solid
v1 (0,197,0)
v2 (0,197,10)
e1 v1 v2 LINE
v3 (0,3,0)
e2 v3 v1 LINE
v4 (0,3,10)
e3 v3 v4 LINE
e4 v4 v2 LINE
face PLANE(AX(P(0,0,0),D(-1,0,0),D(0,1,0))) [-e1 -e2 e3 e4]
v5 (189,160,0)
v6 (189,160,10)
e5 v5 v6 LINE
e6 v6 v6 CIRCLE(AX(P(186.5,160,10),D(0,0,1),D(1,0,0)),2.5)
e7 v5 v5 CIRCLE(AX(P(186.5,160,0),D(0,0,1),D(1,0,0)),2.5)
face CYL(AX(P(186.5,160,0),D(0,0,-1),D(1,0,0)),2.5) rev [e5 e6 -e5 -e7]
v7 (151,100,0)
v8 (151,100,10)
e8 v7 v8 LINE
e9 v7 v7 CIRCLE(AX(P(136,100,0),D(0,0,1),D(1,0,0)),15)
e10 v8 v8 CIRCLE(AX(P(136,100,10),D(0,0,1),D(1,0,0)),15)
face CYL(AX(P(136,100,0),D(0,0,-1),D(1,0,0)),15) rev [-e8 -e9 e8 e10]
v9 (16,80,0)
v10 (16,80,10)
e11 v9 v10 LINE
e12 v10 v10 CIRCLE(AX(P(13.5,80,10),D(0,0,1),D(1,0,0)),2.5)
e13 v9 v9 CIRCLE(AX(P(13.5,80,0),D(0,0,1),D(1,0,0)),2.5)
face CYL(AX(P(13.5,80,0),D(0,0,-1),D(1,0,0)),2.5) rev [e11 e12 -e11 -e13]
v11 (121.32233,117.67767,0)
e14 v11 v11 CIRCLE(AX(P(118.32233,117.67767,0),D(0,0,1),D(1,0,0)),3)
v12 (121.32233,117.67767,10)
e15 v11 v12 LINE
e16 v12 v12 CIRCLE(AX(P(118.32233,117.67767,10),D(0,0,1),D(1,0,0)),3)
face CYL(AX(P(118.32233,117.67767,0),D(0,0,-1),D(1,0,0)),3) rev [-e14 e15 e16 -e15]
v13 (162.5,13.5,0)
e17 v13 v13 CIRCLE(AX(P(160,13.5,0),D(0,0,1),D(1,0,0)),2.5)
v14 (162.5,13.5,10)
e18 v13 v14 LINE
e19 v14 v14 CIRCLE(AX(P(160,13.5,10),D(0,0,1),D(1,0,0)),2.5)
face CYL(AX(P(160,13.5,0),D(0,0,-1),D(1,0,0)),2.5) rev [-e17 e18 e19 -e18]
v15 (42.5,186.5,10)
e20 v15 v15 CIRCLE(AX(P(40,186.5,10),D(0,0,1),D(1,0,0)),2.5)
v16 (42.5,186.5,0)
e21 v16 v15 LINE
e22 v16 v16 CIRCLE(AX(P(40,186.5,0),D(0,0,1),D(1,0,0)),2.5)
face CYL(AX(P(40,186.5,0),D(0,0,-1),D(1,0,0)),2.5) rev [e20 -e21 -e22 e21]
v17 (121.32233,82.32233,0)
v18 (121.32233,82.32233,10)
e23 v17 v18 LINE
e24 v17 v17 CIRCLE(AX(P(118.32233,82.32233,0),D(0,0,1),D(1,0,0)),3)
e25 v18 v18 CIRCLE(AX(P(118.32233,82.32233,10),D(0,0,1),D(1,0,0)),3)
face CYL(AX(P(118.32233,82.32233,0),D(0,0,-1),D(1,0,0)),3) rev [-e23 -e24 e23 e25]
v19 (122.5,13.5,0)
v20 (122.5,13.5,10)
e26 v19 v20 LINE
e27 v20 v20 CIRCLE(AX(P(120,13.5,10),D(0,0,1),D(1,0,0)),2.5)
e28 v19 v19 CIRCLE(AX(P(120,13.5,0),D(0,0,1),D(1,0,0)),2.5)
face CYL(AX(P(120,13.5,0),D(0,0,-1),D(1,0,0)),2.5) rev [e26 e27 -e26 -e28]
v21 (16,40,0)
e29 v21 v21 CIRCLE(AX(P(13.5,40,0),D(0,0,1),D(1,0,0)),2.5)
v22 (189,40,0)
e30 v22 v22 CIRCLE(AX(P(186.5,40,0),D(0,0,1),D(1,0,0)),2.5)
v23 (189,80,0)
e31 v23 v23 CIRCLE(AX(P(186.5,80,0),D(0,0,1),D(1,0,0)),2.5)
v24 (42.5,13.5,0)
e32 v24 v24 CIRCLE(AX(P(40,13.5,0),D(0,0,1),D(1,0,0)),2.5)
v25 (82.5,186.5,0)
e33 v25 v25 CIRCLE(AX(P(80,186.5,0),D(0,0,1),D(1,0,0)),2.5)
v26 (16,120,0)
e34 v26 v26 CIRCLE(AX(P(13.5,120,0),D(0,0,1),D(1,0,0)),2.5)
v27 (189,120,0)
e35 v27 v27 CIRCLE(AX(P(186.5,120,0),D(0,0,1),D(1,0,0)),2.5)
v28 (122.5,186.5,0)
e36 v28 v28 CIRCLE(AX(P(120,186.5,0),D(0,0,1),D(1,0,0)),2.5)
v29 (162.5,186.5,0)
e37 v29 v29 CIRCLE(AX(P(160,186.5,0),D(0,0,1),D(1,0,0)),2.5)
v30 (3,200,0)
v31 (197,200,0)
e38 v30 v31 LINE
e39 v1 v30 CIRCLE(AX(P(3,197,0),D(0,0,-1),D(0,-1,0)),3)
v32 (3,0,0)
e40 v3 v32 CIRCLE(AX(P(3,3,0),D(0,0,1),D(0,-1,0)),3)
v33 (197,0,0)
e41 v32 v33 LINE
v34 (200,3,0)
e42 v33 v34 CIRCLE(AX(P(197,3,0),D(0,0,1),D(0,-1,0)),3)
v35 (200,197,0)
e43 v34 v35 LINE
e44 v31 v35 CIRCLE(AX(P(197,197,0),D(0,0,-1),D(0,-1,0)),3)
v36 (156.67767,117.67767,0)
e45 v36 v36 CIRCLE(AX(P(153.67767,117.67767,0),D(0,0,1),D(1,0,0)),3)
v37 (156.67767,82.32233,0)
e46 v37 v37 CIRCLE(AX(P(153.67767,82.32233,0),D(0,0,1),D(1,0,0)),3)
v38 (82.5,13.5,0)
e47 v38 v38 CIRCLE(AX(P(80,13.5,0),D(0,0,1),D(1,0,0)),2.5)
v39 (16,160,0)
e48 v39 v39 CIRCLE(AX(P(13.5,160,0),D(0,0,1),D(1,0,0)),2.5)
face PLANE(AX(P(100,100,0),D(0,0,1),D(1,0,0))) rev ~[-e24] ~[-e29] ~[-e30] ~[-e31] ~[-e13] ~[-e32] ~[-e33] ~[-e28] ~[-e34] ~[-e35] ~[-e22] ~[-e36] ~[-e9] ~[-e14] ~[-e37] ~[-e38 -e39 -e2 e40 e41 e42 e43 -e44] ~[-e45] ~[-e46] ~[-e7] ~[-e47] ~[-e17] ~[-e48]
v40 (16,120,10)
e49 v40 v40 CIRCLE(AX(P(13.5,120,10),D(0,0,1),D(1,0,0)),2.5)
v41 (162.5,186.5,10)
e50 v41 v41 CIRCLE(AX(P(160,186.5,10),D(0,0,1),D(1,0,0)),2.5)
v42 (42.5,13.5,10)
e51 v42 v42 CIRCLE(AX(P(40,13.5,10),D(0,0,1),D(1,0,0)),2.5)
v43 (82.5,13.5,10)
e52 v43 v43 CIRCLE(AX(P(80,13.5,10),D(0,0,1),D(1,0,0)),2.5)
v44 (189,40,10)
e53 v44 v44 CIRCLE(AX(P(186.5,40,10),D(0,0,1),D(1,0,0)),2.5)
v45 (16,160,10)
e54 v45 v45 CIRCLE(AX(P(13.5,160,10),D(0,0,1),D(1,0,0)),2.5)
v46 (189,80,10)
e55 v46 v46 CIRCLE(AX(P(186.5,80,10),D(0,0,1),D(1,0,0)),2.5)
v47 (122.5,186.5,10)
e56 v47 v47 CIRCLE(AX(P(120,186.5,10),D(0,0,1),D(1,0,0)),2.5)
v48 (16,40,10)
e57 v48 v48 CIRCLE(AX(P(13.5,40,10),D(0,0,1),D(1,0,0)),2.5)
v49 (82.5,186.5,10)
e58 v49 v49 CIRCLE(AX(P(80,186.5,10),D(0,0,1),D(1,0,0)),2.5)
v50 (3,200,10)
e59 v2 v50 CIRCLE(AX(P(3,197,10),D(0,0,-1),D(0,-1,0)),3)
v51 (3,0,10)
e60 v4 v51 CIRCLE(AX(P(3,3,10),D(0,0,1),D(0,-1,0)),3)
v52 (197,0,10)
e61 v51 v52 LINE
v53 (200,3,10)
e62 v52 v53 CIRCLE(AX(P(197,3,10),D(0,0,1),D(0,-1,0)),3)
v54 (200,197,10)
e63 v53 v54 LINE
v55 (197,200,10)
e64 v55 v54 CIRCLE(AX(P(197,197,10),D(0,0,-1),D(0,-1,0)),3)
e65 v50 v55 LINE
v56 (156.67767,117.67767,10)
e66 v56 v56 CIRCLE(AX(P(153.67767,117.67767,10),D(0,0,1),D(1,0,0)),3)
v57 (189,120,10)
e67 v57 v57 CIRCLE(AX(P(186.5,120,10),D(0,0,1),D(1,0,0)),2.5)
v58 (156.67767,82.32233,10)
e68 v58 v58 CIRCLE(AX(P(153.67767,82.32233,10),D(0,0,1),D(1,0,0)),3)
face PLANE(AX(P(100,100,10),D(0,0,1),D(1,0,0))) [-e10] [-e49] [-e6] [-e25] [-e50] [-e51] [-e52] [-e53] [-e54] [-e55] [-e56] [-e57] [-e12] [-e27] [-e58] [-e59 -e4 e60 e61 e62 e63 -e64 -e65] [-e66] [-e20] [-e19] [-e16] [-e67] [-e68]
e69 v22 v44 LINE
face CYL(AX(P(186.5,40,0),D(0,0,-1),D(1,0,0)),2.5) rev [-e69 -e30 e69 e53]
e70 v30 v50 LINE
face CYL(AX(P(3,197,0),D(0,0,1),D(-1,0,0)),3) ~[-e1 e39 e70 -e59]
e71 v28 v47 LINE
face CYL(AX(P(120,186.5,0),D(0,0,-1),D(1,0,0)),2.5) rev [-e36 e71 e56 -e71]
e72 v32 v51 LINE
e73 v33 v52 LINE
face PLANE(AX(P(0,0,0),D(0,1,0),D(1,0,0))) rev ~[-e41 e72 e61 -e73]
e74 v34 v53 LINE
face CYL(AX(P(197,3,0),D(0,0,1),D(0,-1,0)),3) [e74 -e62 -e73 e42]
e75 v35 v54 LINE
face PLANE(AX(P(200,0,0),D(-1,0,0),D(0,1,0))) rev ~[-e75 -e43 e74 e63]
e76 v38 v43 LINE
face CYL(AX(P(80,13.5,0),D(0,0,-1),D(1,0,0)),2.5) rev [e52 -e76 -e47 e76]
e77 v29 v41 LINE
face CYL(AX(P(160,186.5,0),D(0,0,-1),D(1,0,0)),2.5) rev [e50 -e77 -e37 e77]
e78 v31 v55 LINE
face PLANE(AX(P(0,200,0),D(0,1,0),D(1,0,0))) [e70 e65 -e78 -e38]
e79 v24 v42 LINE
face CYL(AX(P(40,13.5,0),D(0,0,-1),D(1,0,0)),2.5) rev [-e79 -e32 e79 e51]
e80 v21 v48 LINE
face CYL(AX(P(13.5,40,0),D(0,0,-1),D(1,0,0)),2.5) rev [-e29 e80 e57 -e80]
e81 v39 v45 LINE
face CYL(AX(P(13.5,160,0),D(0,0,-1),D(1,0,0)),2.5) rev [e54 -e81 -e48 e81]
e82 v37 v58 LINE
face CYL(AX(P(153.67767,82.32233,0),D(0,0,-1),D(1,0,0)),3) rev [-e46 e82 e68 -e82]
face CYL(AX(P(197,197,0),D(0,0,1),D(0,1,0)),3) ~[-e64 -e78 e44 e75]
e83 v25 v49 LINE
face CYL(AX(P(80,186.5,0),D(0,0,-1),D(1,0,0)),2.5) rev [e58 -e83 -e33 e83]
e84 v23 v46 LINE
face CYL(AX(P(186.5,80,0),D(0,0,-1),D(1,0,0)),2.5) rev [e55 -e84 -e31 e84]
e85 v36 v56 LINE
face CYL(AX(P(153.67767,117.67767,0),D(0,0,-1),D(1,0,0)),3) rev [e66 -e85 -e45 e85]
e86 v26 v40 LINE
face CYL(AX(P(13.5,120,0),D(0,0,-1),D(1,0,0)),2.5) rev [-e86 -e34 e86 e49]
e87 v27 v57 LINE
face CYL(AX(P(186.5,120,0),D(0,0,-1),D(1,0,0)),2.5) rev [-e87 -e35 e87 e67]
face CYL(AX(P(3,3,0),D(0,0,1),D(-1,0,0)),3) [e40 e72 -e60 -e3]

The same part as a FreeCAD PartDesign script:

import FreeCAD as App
import Part
import Sketcher


def edges_at(feature, points):
    """Names of the edges that pass closest to the given points."""
    edges = feature.Shape.Edges
    near = lambda p: min(range(len(edges)), key=lambda i: edges[i].distToShape(Part.Vertex(*p))[0])
    return sorted({f"Edge{near(p) + 1}" for p in points})


def add_polygon(sketch, points):
    """Adds a closed chain of lines whose ends are joined by coincident constraints."""
    first, n = sketch.GeometryCount, len(points)
    for a, b in zip(points, points[1:] + points[:1]):
        sketch.addGeometry(Part.LineSegment(App.Vector(*a, 0), App.Vector(*b, 0)), False)
    for i in range(n):
        sketch.addConstraint(Sketcher.Constraint("Coincident", first + i, 2, first + (i + 1) % n, 1))

doc = App.newDocument("Part")
params = doc.addObject("Spreadsheet::Sheet", "Params")
for row, (alias, value) in enumerate([
    ("sketch1_diameter", "5 mm"),
    ("sketch1_diameter2", "6 mm"),
    ("sketch1_diameter3", "30 mm"),
    ("sketch1_width", "200 mm"),
    ("pad1_length", "10 mm"),
    ("fillet_radius", "3 mm"),
], start=1):
    params.set(f"A{row}", alias)
    params.set(f"B{row}", "=" + value)
    params.setAlias(f"B{row}", alias)

body = doc.addObject("PartDesign::Body", "Body")

# Sketch on XY plane
sketch1 = body.newObject("Sketcher::SketchObject", "Sketch")
sketch1.AttachmentSupport = (doc.getObject("XY_Plane"), [""])
sketch1.MapMode = "FlatFace"
add_polygon(sketch1, [(0, 200), (0, 0), (200, 0), (200, 200)])  # lines 0-3
sketch1.addGeometry(Part.Circle(App.Vector(40, 13.5, 0), App.Vector(0, 0, 1), 2.5), False)  # 4
sketch1.addGeometry(Part.Circle(App.Vector(13.5, 40, 0), App.Vector(0, 0, 1), 2.5), False)  # 5
sketch1.addGeometry(Part.Circle(App.Vector(80, 13.5, 0), App.Vector(0, 0, 1), 2.5), False)  # 6
sketch1.addGeometry(Part.Circle(App.Vector(13.5, 80, 0), App.Vector(0, 0, 1), 2.5), False)  # 7
sketch1.addGeometry(Part.Circle(App.Vector(120, 13.5, 0), App.Vector(0, 0, 1), 2.5), False)  # 8
sketch1.addGeometry(Part.Circle(App.Vector(160, 13.5, 0), App.Vector(0, 0, 1), 2.5), False)  # 9
sketch1.addGeometry(Part.Circle(App.Vector(186.5, 40, 0), App.Vector(0, 0, 1), 2.5), False)  # 10
sketch1.addGeometry(Part.Circle(App.Vector(118.3, 82.3, 0), App.Vector(0, 0, 1), 3), False)  # 11
sketch1.addGeometry(Part.Circle(App.Vector(153.7, 82.3, 0), App.Vector(0, 0, 1), 3), False)  # 12
sketch1.addGeometry(Part.Circle(App.Vector(186.5, 80, 0), App.Vector(0, 0, 1), 2.5), False)  # 13
sketch1.addGeometry(Part.Circle(App.Vector(13.5, 120, 0), App.Vector(0, 0, 1), 2.5), False)  # 14
sketch1.addGeometry(Part.Circle(App.Vector(13.5, 160, 0), App.Vector(0, 0, 1), 2.5), False)  # 15
sketch1.addGeometry(Part.Circle(App.Vector(40, 186.5, 0), App.Vector(0, 0, 1), 2.5), False)  # 16
sketch1.addGeometry(Part.Circle(App.Vector(80, 186.5, 0), App.Vector(0, 0, 1), 2.5), False)  # 17
sketch1.addGeometry(Part.Circle(App.Vector(118.3, 117.7, 0), App.Vector(0, 0, 1), 3), False)  # 18
sketch1.addGeometry(Part.Circle(App.Vector(136, 100, 0), App.Vector(0, 0, 1), 15), False)  # 19
sketch1.addGeometry(Part.Circle(App.Vector(153.7, 117.7, 0), App.Vector(0, 0, 1), 3), False)  # 20
sketch1.addGeometry(Part.Circle(App.Vector(186.5, 120, 0), App.Vector(0, 0, 1), 2.5), False)  # 21
sketch1.addGeometry(Part.Circle(App.Vector(120, 186.5, 0), App.Vector(0, 0, 1), 2.5), False)  # 22
sketch1.addGeometry(Part.Circle(App.Vector(186.5, 160, 0), App.Vector(0, 0, 1), 2.5), False)  # 23
sketch1.addGeometry(Part.Circle(App.Vector(160, 186.5, 0), App.Vector(0, 0, 1), 2.5), False)  # 24
sketch1.addConstraint([
    Sketcher.Constraint("Vertical", 0),
    Sketcher.Constraint("Horizontal", 1),
    Sketcher.Constraint("Vertical", 2),
    Sketcher.Constraint("Horizontal", 3),
    Sketcher.Constraint("Coincident", 0, 2, -1, 1),
    Sketcher.Constraint("Equal", 4, 5),
    Sketcher.Constraint("Equal", 5, 6),
    Sketcher.Constraint("Equal", 6, 7),
    Sketcher.Constraint("Equal", 7, 8),
    Sketcher.Constraint("Equal", 8, 9),
    Sketcher.Constraint("Equal", 9, 10),
    Sketcher.Constraint("Equal", 11, 12),
    Sketcher.Constraint("Equal", 10, 13),
    Sketcher.Constraint("Equal", 13, 14),
    Sketcher.Constraint("Equal", 14, 15),
    Sketcher.Constraint("Equal", 15, 16),
    Sketcher.Constraint("Equal", 16, 17),
    Sketcher.Constraint("Equal", 12, 18),
    Sketcher.Constraint("Equal", 18, 20),
    Sketcher.Constraint("Equal", 17, 21),
    Sketcher.Constraint("Equal", 21, 22),
    Sketcher.Constraint("Equal", 22, 23),
    Sketcher.Constraint("Equal", 23, 24),
    Sketcher.Constraint("Horizontal", 4, 3, 6, 3),
    Sketcher.Constraint("Horizontal", 6, 3, 8, 3),
    Sketcher.Constraint("Horizontal", 8, 3, 9, 3),
    Sketcher.Constraint("Horizontal", 5, 3, 10, 3),
    Sketcher.Constraint("Horizontal", 11, 3, 12, 3),
    Sketcher.Constraint("Horizontal", 7, 3, 13, 3),
    Sketcher.Constraint("Horizontal", 16, 3, 17, 3),
    Sketcher.Constraint("Horizontal", 18, 3, 20, 3),
    Sketcher.Constraint("Horizontal", 14, 3, 21, 3),
    Sketcher.Constraint("Horizontal", 17, 3, 22, 3),
    Sketcher.Constraint("Horizontal", 15, 3, 23, 3),
    Sketcher.Constraint("Horizontal", 22, 3, 24, 3),
    Sketcher.Constraint("Vertical", 5, 3, 7, 3),
    Sketcher.Constraint("Vertical", 10, 3, 13, 3),
    Sketcher.Constraint("Vertical", 7, 3, 14, 3),
    Sketcher.Constraint("Vertical", 14, 3, 15, 3),
    Sketcher.Constraint("Vertical", 4, 3, 16, 3),
    Sketcher.Constraint("Vertical", 6, 3, 17, 3),
    Sketcher.Constraint("Vertical", 11, 3, 18, 3),
    Sketcher.Constraint("Vertical", 12, 3, 20, 3),
    Sketcher.Constraint("Vertical", 13, 3, 21, 3),
    Sketcher.Constraint("Vertical", 8, 3, 22, 3),
    Sketcher.Constraint("Vertical", 21, 3, 23, 3),
    Sketcher.Constraint("Vertical", 9, 3, 24, 3),
    Sketcher.Constraint("Equal", 3, 0),
    Sketcher.Constraint("Diameter", 4, 5.0),
    Sketcher.Constraint("Diameter", 11, 6.0),
    Sketcher.Constraint("Diameter", 19, 30.0),
    Sketcher.Constraint("DistanceX", 1, 1, 1, 2, 200.0),
    Sketcher.Constraint("DistanceX", -1, 1, 4, 3, 40.0),
    Sketcher.Constraint("DistanceY", -1, 1, 5, 3, 40.0),
    Sketcher.Constraint("DistanceX", -1, 1, 6, 3, 80.0),
    Sketcher.Constraint("DistanceY", -1, 1, 7, 3, 80.0),
    Sketcher.Constraint("DistanceX", -1, 1, 8, 3, 120.0),
    Sketcher.Constraint("DistanceX", -1, 1, 9, 3, 160.0),
    Sketcher.Constraint("DistanceY", -1, 1, 14, 3, 120.0),
    Sketcher.Constraint("DistanceY", -1, 1, 15, 3, 160.0),
    Sketcher.Constraint("DistanceX", -1, 1, 19, 3, 136.0),
    Sketcher.Constraint("DistanceY", -1, 1, 19, 3, 100.0),
    Sketcher.Constraint("DistanceX", 5, 3, 10, 3, 173.0),
    Sketcher.Constraint("DistanceY", -1, 1, 4, 3, 13.5),
    Sketcher.Constraint("DistanceX", -1, 1, 5, 3, 13.5),
    Sketcher.Constraint("DistanceY", -1, 1, 16, 3, 186.5),
    Sketcher.Constraint("DistanceX", -1, 1, 11, 3, 118.32233),
    Sketcher.Constraint("DistanceY", -1, 1, 11, 3, 82.32233),
    Sketcher.Constraint("DistanceX", -1, 1, 12, 3, 153.67767),
    Sketcher.Constraint("DistanceY", -1, 1, 18, 3, 117.67767),
])
sketch1.setExpression("Constraints[52]", "Params.sketch1_diameter")
sketch1.setExpression("Constraints[53]", "Params.sketch1_diameter2")
sketch1.setExpression("Constraints[54]", "Params.sketch1_diameter3")
sketch1.setExpression("Constraints[55]", "Params.sketch1_width")
pad1 = body.newObject("PartDesign::Pad", "Pad")
pad1.Profile = sketch1
pad1.setExpression("Length", "Params.pad1_length")
doc.recompute()

fillet = body.newObject("PartDesign::Fillet", "Fillet")
fillet.Base = (pad1, edges_at(pad1, [
    (0, 0, 5),
    (200, 0, 5),
    (0, 200, 5),
    (200, 200, 5),
]))
fillet.setExpression("Radius", "Params.fillet_radius")

doc.recompute()
